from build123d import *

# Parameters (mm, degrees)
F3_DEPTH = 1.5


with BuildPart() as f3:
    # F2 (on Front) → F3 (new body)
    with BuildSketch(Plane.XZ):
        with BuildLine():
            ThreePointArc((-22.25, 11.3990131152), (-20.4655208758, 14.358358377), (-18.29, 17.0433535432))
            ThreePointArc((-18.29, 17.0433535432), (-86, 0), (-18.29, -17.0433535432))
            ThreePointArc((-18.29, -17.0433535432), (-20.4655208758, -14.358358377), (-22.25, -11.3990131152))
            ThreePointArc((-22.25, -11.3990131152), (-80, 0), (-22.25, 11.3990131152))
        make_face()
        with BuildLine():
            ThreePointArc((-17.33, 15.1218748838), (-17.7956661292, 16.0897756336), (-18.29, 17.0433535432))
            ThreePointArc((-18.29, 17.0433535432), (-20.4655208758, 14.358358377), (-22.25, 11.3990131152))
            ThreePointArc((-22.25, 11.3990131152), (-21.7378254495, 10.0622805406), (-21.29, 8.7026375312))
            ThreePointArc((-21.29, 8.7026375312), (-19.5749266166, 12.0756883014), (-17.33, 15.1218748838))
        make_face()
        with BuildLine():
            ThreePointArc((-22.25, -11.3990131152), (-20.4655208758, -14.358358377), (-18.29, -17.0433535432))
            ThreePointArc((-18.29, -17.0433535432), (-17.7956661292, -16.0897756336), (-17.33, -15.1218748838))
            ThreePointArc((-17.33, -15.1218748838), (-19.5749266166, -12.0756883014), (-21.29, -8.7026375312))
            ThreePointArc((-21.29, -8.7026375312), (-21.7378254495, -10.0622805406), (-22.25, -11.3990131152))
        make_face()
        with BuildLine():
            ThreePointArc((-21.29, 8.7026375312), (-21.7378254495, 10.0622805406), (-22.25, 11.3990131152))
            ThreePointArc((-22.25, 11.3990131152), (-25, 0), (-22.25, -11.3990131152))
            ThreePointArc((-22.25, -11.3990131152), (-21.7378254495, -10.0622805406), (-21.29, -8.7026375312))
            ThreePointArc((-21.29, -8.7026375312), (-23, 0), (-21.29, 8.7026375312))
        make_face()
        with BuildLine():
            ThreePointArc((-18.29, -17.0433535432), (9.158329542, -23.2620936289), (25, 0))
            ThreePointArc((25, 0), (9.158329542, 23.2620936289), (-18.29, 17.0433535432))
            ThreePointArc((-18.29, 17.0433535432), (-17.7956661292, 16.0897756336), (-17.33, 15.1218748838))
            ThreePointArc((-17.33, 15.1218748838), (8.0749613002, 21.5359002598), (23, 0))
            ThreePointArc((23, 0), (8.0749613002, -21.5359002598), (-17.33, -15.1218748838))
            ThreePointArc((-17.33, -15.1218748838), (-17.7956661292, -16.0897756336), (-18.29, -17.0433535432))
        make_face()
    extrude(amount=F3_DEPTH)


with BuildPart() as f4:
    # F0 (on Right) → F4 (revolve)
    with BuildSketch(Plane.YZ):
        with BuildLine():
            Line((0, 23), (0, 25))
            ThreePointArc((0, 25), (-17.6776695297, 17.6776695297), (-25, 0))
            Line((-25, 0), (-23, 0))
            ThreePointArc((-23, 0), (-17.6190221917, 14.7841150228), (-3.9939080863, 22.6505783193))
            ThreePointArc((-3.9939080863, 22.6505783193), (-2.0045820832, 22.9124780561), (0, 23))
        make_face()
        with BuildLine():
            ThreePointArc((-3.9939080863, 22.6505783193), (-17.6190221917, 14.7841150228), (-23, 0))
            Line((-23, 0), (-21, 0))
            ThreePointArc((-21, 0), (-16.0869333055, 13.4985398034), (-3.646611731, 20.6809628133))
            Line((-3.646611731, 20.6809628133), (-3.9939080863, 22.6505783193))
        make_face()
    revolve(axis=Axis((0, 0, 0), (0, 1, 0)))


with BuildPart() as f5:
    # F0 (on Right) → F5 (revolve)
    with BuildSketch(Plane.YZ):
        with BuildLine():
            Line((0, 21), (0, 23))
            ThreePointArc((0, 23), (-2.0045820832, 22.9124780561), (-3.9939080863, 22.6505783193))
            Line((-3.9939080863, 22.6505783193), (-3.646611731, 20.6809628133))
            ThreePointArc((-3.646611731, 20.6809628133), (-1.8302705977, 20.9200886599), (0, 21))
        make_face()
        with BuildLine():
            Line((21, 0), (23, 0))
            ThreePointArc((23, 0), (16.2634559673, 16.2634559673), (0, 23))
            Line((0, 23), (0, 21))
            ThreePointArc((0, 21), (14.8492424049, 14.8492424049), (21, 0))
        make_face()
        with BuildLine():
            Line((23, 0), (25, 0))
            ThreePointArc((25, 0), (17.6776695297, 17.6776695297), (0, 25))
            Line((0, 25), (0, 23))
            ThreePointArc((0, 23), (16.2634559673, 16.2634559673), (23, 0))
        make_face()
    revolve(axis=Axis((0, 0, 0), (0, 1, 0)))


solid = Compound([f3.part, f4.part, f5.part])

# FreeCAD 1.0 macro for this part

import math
import FreeCAD as App
import Part
import Sketcher
from FreeCAD import Vector
Q = App.Units.Quantity

doc = App.newDocument("Part")
body = doc.addObject("PartDesign::Body", "Body")

# Sketch on XZ plane
sketch1 = body.newObject("Sketcher::SketchObject", "Sketch")
sketch1.AttachmentSupport = (doc.getObject("XZ_Plane"), [""])
sketch1.MapMode = "FlatFace"
sketch1.addGeometry([
    Part.ArcOfCircle(Part.Circle(Vector(-50, 0, 0), Vector(0, 0, 1), 36), math.radians(28), math.radians(332)),  # 0
    Part.ArcOfCircle(Part.Circle(Vector(0, 0, 0), Vector(0, 0, 1), 25), math.radians(-137), math.radians(137)),  # 1
    Part.ArcOfCircle(Part.Circle(Vector(0, 0, 0), Vector(0, 0, 1), 23), math.radians(-157.77), math.radians(-138.89)),  # 2
    Part.ArcOfCircle(Part.Circle(Vector(0, 0, 0), Vector(0, 0, 1), 23), math.radians(158), math.radians(202)),  # 3
    Part.ArcOfCircle(Part.Circle(Vector(0, 0, 0), Vector(0, 0, 1), 23), math.radians(138.89), math.radians(157.77)),  # 4
    Part.ArcOfCircle(Part.Circle(Vector(0, 0, 0), Vector(0, 0, 1), 23), math.radians(0), math.radians(139)),  # 5
    Part.ArcOfCircle(Part.Circle(Vector(0, 0, 0), Vector(0, 0, 1), 23), math.radians(-139), math.radians(0)),  # 6
    Part.ArcOfCircle(Part.Circle(Vector(-50, 0, 0), Vector(0, 0, 1), 30), math.radians(22), math.radians(338)),  # 7
    Part.ArcOfCircle(Part.Circle(Vector(0, 0, 0), Vector(0, 0, 1), 25), math.radians(153), math.radians(207)),  # 8
], False)
sketch1.addConstraint([
    Sketcher.Constraint("Coincident", 0, 1, 1, 2),
    Sketcher.Constraint("Coincident", 1, 1, 0, 2),
    Sketcher.Constraint("Tangent", 2, 1, 3, 2),
    Sketcher.Constraint("Tangent", 3, 1, 4, 2),
    Sketcher.Constraint("Tangent", 4, 1, 5, 2),
    Sketcher.Constraint("Tangent", 5, 1, 6, 2),
    Sketcher.Constraint("Tangent", 6, 1, 2, 2),
    Sketcher.Constraint("Coincident", 7, 1, 8, 1),
    Sketcher.Constraint("Coincident", 8, 2, 7, 2),
    Sketcher.Constraint("Coincident", 1, 3, -1, 1),
    Sketcher.Constraint("Coincident", 2, 3, -1, 1),
    Sketcher.Constraint("Coincident", 4, 3, -1, 1),
    Sketcher.Constraint("Coincident", 8, 3, -1, 1),
    Sketcher.Constraint("Coincident", 7, 3, 0, 3),
    Sketcher.Constraint("Equal", 1, 8),
    Sketcher.Constraint("PointOnObject", 0, 3, -1),
    Sketcher.Constraint("PointOnObject", 5, 1, -1),
    Sketcher.Constraint("Vertical", 2, 1, 3, 1),
    Sketcher.Constraint("Vertical", 4, 1, 6, 1),
    Sketcher.Constraint("Radius", 0, 36.0),
    Sketcher.Constraint("Radius", 1, 25.0),
    Sketcher.Constraint("Radius", 2, 23.0),
    Sketcher.Constraint("Radius", 7, 30.0),
    Sketcher.Constraint("DistanceX", 0, 3, -1, 1, 50.0),
    Sketcher.Constraint("DistanceX", 2, 1, 1, 1, 3.0),
    Sketcher.Constraint("DistanceX", 4, 1, -1, 1, 17.33),
])
pad1 = body.newObject("PartDesign::Pad", "Pad")
pad1.Profile = sketch1
pad1.Length = 1.5
body2 = doc.addObject("PartDesign::Body", "Body001")

# Sketch on YZ plane
sketch2 = body2.newObject("Sketcher::SketchObject", "Sketch001")
sketch2.AttachmentSupport = (doc.getObject("YZ_Plane001"), [""])
sketch2.MapMode = "FlatFace"
sketch2.addGeometry([
    Part.LineSegment(Vector(0, 23, 0), Vector(0, 25, 0)),  # 0
    Part.ArcOfCircle(Part.Circle(Vector(0, 0, 0), Vector(0, 0, 1), 25), math.radians(90), math.radians(180)),  # 1
    Part.LineSegment(Vector(-25, 0, 0), Vector(-21, 0, 0)),  # 2
    Part.ArcOfCircle(Part.Circle(Vector(0, 0, 0), Vector(0, 0, 1), 21), math.radians(100), math.radians(180)),  # 3
    Part.LineSegment(Vector(-3.6, 20.7, 0), Vector(-4, 22.7, 0)),  # 4
    Part.ArcOfCircle(Part.Circle(Vector(0, 0, 0), Vector(0, 0, 1), 23), math.radians(90), math.radians(100)),  # 5
], False)
sketch2.addConstraint([
    Sketcher.Constraint("Coincident", 0, 2, 1, 1),
    Sketcher.Constraint("Coincident", 1, 2, 2, 1),
    Sketcher.Constraint("Coincident", 2, 2, 3, 2),
    Sketcher.Constraint("Coincident", 3, 1, 4, 1),
    Sketcher.Constraint("Coincident", 4, 2, 5, 2),
    Sketcher.Constraint("Coincident", 5, 1, 0, 1),
    Sketcher.Constraint("Vertical", 0),
    Sketcher.Constraint("Horizontal", 2),
    Sketcher.Constraint("Coincident", 1, 3, -1, 1),
    Sketcher.Constraint("Coincident", 3, 3, -1, 1),
    Sketcher.Constraint("Coincident", 5, 3, -1, 1),
    Sketcher.Constraint("PointOnObject", 0, 2, -2),
    Sketcher.Constraint("PointOnObject", 1, 2, -1),
    Sketcher.Constraint("Radius", 1, 25.0),
    Sketcher.Constraint("Radius", 3, 21.0),
    Sketcher.Constraint("Radius", 5, 23.0),
    Sketcher.Constraint("Angle", 4, Q("100 deg")),
    Sketcher.Constraint("DistanceX", 3, 1, -1, 1, 3.646612),
])
revolution = body2.newObject("PartDesign::Revolution", "Revolution")
revolution.Profile = sketch2
revolution.ReferenceAxis = (sketch2, ["H_Axis"])
revolution.Angle = 360
body3 = doc.addObject("PartDesign::Body", "Body002")

# Sketch on YZ plane
sketch3 = body3.newObject("Sketcher::SketchObject", "Sketch002")
sketch3.AttachmentSupport = (doc.getObject("YZ_Plane002"), [""])
sketch3.MapMode = "FlatFace"
sketch3.addGeometry([
    Part.ArcOfCircle(Part.Circle(Vector(0, 0, 0), Vector(0, 0, 1), 23), math.radians(90), math.radians(100)),  # 0
    Part.LineSegment(Vector(-4, 22.7, 0), Vector(-3.6, 20.7, 0)),  # 1
    Part.ArcOfCircle(Part.Circle(Vector(0, 0, 0), Vector(0, 0, 1), 21), math.radians(90), math.radians(100)),  # 2
    Part.ArcOfCircle(Part.Circle(Vector(0, 0, 0), Vector(0, 0, 1), 21), math.radians(0), math.radians(90)),  # 3
    Part.LineSegment(Vector(21, 0, 0), Vector(25, 0, 0)),  # 4
    Part.ArcOfCircle(Part.Circle(Vector(0, 0, 0), Vector(0, 0, 1), 25), math.radians(0), math.radians(90)),  # 5
    Part.LineSegment(Vector(0, 25, 0), Vector(0, 23, 0)),  # 6
], False)
sketch3.addConstraint([
    Sketcher.Constraint("Coincident", 0, 2, 1, 1),
    Sketcher.Constraint("Coincident", 1, 2, 2, 2),
    Sketcher.Constraint("Tangent", 2, 1, 3, 2),
    Sketcher.Constraint("Coincident", 3, 1, 4, 1),
    Sketcher.Constraint("Coincident", 4, 2, 5, 1),
    Sketcher.Constraint("Coincident", 5, 2, 6, 1),
    Sketcher.Constraint("Coincident", 6, 2, 0, 1),
    Sketcher.Constraint("Horizontal", 4),
    Sketcher.Constraint("Vertical", 6),
    Sketcher.Constraint("Coincident", 0, 3, -1, 1),
    Sketcher.Constraint("Coincident", 2, 3, -1, 1),
    Sketcher.Constraint("Coincident", 5, 3, -1, 1),
    Sketcher.Constraint("Equal", 2, 3),
    Sketcher.Constraint("PointOnObject", 2, 1, -2),
    Sketcher.Constraint("PointOnObject", 3, 1, -1),
    Sketcher.Constraint("PointOnObject", 5, 2, -2),
    Sketcher.Constraint("Radius", 0, 23.0),
    Sketcher.Constraint("Radius", 2, 21.0),
    Sketcher.Constraint("Radius", 5, 25.0),
    Sketcher.Constraint("Angle", 1, Q("-80 deg")),
    Sketcher.Constraint("DistanceX", 0, 2, -1, 1, 3.993908),
])
revolution2 = body3.newObject("PartDesign::Revolution", "Revolution001")
revolution2.Profile = sketch3
revolution2.ReferenceAxis = (sketch3, ["H_Axis"])
revolution2.Angle = 360

doc.recompute()
